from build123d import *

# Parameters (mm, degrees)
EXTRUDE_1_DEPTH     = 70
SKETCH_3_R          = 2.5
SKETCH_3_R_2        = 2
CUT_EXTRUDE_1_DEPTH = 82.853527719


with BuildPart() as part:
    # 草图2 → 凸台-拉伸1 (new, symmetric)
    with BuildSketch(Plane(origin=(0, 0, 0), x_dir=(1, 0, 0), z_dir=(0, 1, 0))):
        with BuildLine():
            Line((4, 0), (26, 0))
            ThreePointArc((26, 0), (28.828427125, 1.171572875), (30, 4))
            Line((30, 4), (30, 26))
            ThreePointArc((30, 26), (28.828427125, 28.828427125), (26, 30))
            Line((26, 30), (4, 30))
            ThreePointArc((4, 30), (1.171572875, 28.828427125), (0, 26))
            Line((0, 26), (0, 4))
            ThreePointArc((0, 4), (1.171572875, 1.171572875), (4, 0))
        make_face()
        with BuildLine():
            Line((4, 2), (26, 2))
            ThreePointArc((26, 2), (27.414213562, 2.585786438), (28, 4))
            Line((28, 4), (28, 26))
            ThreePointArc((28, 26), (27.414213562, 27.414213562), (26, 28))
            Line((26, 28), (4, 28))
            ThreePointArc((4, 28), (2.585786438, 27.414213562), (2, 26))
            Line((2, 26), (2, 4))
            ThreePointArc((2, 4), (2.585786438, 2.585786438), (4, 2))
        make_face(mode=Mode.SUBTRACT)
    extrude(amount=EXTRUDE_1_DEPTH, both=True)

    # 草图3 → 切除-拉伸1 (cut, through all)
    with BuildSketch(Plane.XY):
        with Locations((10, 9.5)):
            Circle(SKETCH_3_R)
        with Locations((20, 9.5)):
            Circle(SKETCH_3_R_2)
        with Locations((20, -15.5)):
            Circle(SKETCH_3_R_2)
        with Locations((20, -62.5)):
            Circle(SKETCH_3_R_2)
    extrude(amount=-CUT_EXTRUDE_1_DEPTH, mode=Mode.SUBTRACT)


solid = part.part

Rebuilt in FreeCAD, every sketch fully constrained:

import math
import FreeCAD as App
import Part
import Sketcher
from FreeCAD import Vector

doc = App.newDocument("Part")
params = doc.addObject("Spreadsheet::Sheet", "Params")
for row, (alias, value) in enumerate([
    ("sketch1_radius", "4 mm"),
    ("sketch1_radius2", "2 mm"),
    ("sketch1_width", "22 mm"),
    ("pad1_length", "140 mm"),
    ("sketch2_diameter", "5 mm"),
    ("sketch2_diameter2", "4 mm"),
], start=1):
    params.set(f"A{row}", alias)
    params.set(f"B{row}", "=" + value)
    params.setAlias(f"B{row}", alias)

body = doc.addObject("PartDesign::Body", "Body")

# Sketch on XZ plane
sketch1 = body.newObject("Sketcher::SketchObject", "Sketch")
sketch1.AttachmentSupport = (doc.getObject("XZ_Plane"), [""])
sketch1.MapMode = "FlatFace"
sketch1.addGeometry(Part.LineSegment(Vector(4, 0, 0), Vector(26, 0, 0)), False)
sketch1.addGeometry(Part.ArcOfCircle(Part.Circle(Vector(26, -4, 0), Vector(0, 0, 1), 4), math.radians(0), math.radians(90)), False)
sketch1.addGeometry(Part.LineSegment(Vector(30, -4, 0), Vector(30, -26, 0)), False)
sketch1.addGeometry(Part.ArcOfCircle(Part.Circle(Vector(26, -26, 0), Vector(0, 0, 1), 4), math.radians(-90), math.radians(0)), False)
sketch1.addGeometry(Part.LineSegment(Vector(26, -30, 0), Vector(4, -30, 0)), False)
sketch1.addGeometry(Part.ArcOfCircle(Part.Circle(Vector(4, -26, 0), Vector(0, 0, 1), 4), math.radians(180), math.radians(270)), False)
sketch1.addGeometry(Part.LineSegment(Vector(0, -26, 0), Vector(0, -4, 0)), False)
sketch1.addGeometry(Part.ArcOfCircle(Part.Circle(Vector(4, -4, 0), Vector(0, 0, 1), 4), math.radians(90), math.radians(180)), False)
sketch1.addGeometry(Part.LineSegment(Vector(26, -2, 0), Vector(4, -2, 0)), False)
sketch1.addGeometry(Part.ArcOfCircle(Part.Circle(Vector(4, -4, 0), Vector(0, 0, 1), 2), math.radians(90), math.radians(180)), False)
sketch1.addGeometry(Part.LineSegment(Vector(2, -4, 0), Vector(2, -26, 0)), False)
sketch1.addGeometry(Part.ArcOfCircle(Part.Circle(Vector(4, -26, 0), Vector(0, 0, 1), 2), math.radians(-180), math.radians(-90)), False)
sketch1.addGeometry(Part.LineSegment(Vector(4, -28, 0), Vector(26, -28, 0)), False)
sketch1.addGeometry(Part.ArcOfCircle(Part.Circle(Vector(26, -26, 0), Vector(0, 0, 1), 2), math.radians(-90), math.radians(0)), False)
sketch1.addGeometry(Part.LineSegment(Vector(28, -26, 0), Vector(28, -4, 0)), False)
sketch1.addGeometry(Part.ArcOfCircle(Part.Circle(Vector(26, -4, 0), Vector(0, 0, 1), 2), math.radians(0), math.radians(90)), False)
sketch1.addConstraint(Sketcher.Constraint("Tangent", 0, 2, 1, 2))
sketch1.addConstraint(Sketcher.Constraint("Tangent", 1, 1, 2, 1))
sketch1.addConstraint(Sketcher.Constraint("Tangent", 2, 2, 3, 2))
sketch1.addConstraint(Sketcher.Constraint("Tangent", 3, 1, 4, 1))
sketch1.addConstraint(Sketcher.Constraint("Tangent", 4, 2, 5, 2))
sketch1.addConstraint(Sketcher.Constraint("Tangent", 5, 1, 6, 1))
sketch1.addConstraint(Sketcher.Constraint("Tangent", 6, 2, 7, 2))
sketch1.addConstraint(Sketcher.Constraint("Tangent", 7, 1, 0, 1))
sketch1.addConstraint(Sketcher.Constraint("Tangent", 8, 2, 9, 1))
sketch1.addConstraint(Sketcher.Constraint("Tangent", 9, 2, 10, 1))
sketch1.addConstraint(Sketcher.Constraint("Tangent", 10, 2, 11, 1))
sketch1.addConstraint(Sketcher.Constraint("Tangent", 11, 2, 12, 1))
sketch1.addConstraint(Sketcher.Constraint("Tangent", 12, 2, 13, 1))
sketch1.addConstraint(Sketcher.Constraint("Tangent", 13, 2, 14, 1))
sketch1.addConstraint(Sketcher.Constraint("Tangent", 14, 2, 15, 1))
sketch1.addConstraint(Sketcher.Constraint("Tangent", 15, 2, 8, 1))
sketch1.addConstraint(Sketcher.Constraint("Horizontal", 0))
sketch1.addConstraint(Sketcher.Constraint("Vertical", 2))
sketch1.addConstraint(Sketcher.Constraint("Horizontal", 4))
sketch1.addConstraint(Sketcher.Constraint("Vertical", 6))
sketch1.addConstraint(Sketcher.Constraint("Horizontal", 8))
sketch1.addConstraint(Sketcher.Constraint("Vertical", 10))
sketch1.addConstraint(Sketcher.Constraint("Horizontal", 12))
sketch1.addConstraint(Sketcher.Constraint("Vertical", 14))
sketch1.addConstraint(Sketcher.Constraint("Coincident", 9, 3, 7, 3))
sketch1.addConstraint(Sketcher.Constraint("Coincident", 11, 3, 5, 3))
sketch1.addConstraint(Sketcher.Constraint("Coincident", 13, 3, 3, 3))
sketch1.addConstraint(Sketcher.Constraint("Equal", 1, 3))
sketch1.addConstraint(Sketcher.Constraint("Equal", 3, 5))
sketch1.addConstraint(Sketcher.Constraint("Equal", 5, 7))
sketch1.addConstraint(Sketcher.Constraint("Equal", 13, 15))
sketch1.addConstraint(Sketcher.Constraint("PointOnObject", 0, 2, -1))
sketch1.addConstraint(Sketcher.Constraint("PointOnObject", 5, 1, -2))
sketch1.addConstraint(Sketcher.Constraint("Equal", 12, 2))
sketch1.addConstraint(Sketcher.Constraint("Radius", 1, 4.0))
sketch1.addConstraint(Sketcher.Constraint("Radius", 9, 2.0))
sketch1.addConstraint(Sketcher.Constraint("DistanceX", 0, 1, 0, 2, 22.0))
sketch1.setExpression("Constraints[34]", "Params.sketch1_radius")
sketch1.setExpression("Constraints[35]", "Params.sketch1_radius2")
sketch1.setExpression("Constraints[36]", "Params.sketch1_width")
pad1 = body.newObject("PartDesign::Pad", "Pad")
pad1.Profile = sketch1
pad1.setExpression("Length", "Params.pad1_length")
pad1.Midplane = True

# Sketch on XY plane
sketch2 = body.newObject("Sketcher::SketchObject", "Sketch001")
sketch2.AttachmentSupport = (doc.getObject("XY_Plane"), [""])
sketch2.MapMode = "FlatFace"
sketch2.addGeometry(Part.Circle(Vector(10, 9.5, 0), Vector(0, 0, 1), 2.5), False)
sketch2.addGeometry(Part.Circle(Vector(20, 9.5, 0), Vector(0, 0, 1), 2), False)
sketch2.addGeometry(Part.Circle(Vector(20, -15.5, 0), Vector(0, 0, 1), 2), False)
sketch2.addGeometry(Part.Circle(Vector(20, -62.5, 0), Vector(0, 0, 1), 2), False)
sketch2.addConstraint(Sketcher.Constraint("Equal", 1, 2))
sketch2.addConstraint(Sketcher.Constraint("Equal", 2, 3))
sketch2.addConstraint(Sketcher.Constraint("Horizontal", 0, 3, 1, 3))
sketch2.addConstraint(Sketcher.Constraint("Vertical", 1, 3, 2, 3))
sketch2.addConstraint(Sketcher.Constraint("Vertical", 2, 3, 3, 3))
sketch2.addConstraint(Sketcher.Constraint("Diameter", 0, 5.0))
sketch2.addConstraint(Sketcher.Constraint("Diameter", 1, 4.0))
sketch2.addConstraint(Sketcher.Constraint("DistanceX", -1, 1, 0, 3, 10.0))
sketch2.addConstraint(Sketcher.Constraint("DistanceX", -1, 1, 1, 3, 20.0))
sketch2.addConstraint(Sketcher.Constraint("DistanceY", 2, 3, 1, 3, 25.0))
sketch2.addConstraint(Sketcher.Constraint("DistanceY", 3, 3, 2, 3, 47.0))
sketch2.addConstraint(Sketcher.Constraint("DistanceY", -1, 1, 0, 3, 9.5))
sketch2.setExpression("Constraints[5]", "Params.sketch2_diameter")
sketch2.setExpression("Constraints[6]", "Params.sketch2_diameter2")
pocket1 = body.newObject("PartDesign::Pocket", "Pocket")
pocket1.Profile = sketch2
pocket1.Type = "ThroughAll"

doc.recompute()
